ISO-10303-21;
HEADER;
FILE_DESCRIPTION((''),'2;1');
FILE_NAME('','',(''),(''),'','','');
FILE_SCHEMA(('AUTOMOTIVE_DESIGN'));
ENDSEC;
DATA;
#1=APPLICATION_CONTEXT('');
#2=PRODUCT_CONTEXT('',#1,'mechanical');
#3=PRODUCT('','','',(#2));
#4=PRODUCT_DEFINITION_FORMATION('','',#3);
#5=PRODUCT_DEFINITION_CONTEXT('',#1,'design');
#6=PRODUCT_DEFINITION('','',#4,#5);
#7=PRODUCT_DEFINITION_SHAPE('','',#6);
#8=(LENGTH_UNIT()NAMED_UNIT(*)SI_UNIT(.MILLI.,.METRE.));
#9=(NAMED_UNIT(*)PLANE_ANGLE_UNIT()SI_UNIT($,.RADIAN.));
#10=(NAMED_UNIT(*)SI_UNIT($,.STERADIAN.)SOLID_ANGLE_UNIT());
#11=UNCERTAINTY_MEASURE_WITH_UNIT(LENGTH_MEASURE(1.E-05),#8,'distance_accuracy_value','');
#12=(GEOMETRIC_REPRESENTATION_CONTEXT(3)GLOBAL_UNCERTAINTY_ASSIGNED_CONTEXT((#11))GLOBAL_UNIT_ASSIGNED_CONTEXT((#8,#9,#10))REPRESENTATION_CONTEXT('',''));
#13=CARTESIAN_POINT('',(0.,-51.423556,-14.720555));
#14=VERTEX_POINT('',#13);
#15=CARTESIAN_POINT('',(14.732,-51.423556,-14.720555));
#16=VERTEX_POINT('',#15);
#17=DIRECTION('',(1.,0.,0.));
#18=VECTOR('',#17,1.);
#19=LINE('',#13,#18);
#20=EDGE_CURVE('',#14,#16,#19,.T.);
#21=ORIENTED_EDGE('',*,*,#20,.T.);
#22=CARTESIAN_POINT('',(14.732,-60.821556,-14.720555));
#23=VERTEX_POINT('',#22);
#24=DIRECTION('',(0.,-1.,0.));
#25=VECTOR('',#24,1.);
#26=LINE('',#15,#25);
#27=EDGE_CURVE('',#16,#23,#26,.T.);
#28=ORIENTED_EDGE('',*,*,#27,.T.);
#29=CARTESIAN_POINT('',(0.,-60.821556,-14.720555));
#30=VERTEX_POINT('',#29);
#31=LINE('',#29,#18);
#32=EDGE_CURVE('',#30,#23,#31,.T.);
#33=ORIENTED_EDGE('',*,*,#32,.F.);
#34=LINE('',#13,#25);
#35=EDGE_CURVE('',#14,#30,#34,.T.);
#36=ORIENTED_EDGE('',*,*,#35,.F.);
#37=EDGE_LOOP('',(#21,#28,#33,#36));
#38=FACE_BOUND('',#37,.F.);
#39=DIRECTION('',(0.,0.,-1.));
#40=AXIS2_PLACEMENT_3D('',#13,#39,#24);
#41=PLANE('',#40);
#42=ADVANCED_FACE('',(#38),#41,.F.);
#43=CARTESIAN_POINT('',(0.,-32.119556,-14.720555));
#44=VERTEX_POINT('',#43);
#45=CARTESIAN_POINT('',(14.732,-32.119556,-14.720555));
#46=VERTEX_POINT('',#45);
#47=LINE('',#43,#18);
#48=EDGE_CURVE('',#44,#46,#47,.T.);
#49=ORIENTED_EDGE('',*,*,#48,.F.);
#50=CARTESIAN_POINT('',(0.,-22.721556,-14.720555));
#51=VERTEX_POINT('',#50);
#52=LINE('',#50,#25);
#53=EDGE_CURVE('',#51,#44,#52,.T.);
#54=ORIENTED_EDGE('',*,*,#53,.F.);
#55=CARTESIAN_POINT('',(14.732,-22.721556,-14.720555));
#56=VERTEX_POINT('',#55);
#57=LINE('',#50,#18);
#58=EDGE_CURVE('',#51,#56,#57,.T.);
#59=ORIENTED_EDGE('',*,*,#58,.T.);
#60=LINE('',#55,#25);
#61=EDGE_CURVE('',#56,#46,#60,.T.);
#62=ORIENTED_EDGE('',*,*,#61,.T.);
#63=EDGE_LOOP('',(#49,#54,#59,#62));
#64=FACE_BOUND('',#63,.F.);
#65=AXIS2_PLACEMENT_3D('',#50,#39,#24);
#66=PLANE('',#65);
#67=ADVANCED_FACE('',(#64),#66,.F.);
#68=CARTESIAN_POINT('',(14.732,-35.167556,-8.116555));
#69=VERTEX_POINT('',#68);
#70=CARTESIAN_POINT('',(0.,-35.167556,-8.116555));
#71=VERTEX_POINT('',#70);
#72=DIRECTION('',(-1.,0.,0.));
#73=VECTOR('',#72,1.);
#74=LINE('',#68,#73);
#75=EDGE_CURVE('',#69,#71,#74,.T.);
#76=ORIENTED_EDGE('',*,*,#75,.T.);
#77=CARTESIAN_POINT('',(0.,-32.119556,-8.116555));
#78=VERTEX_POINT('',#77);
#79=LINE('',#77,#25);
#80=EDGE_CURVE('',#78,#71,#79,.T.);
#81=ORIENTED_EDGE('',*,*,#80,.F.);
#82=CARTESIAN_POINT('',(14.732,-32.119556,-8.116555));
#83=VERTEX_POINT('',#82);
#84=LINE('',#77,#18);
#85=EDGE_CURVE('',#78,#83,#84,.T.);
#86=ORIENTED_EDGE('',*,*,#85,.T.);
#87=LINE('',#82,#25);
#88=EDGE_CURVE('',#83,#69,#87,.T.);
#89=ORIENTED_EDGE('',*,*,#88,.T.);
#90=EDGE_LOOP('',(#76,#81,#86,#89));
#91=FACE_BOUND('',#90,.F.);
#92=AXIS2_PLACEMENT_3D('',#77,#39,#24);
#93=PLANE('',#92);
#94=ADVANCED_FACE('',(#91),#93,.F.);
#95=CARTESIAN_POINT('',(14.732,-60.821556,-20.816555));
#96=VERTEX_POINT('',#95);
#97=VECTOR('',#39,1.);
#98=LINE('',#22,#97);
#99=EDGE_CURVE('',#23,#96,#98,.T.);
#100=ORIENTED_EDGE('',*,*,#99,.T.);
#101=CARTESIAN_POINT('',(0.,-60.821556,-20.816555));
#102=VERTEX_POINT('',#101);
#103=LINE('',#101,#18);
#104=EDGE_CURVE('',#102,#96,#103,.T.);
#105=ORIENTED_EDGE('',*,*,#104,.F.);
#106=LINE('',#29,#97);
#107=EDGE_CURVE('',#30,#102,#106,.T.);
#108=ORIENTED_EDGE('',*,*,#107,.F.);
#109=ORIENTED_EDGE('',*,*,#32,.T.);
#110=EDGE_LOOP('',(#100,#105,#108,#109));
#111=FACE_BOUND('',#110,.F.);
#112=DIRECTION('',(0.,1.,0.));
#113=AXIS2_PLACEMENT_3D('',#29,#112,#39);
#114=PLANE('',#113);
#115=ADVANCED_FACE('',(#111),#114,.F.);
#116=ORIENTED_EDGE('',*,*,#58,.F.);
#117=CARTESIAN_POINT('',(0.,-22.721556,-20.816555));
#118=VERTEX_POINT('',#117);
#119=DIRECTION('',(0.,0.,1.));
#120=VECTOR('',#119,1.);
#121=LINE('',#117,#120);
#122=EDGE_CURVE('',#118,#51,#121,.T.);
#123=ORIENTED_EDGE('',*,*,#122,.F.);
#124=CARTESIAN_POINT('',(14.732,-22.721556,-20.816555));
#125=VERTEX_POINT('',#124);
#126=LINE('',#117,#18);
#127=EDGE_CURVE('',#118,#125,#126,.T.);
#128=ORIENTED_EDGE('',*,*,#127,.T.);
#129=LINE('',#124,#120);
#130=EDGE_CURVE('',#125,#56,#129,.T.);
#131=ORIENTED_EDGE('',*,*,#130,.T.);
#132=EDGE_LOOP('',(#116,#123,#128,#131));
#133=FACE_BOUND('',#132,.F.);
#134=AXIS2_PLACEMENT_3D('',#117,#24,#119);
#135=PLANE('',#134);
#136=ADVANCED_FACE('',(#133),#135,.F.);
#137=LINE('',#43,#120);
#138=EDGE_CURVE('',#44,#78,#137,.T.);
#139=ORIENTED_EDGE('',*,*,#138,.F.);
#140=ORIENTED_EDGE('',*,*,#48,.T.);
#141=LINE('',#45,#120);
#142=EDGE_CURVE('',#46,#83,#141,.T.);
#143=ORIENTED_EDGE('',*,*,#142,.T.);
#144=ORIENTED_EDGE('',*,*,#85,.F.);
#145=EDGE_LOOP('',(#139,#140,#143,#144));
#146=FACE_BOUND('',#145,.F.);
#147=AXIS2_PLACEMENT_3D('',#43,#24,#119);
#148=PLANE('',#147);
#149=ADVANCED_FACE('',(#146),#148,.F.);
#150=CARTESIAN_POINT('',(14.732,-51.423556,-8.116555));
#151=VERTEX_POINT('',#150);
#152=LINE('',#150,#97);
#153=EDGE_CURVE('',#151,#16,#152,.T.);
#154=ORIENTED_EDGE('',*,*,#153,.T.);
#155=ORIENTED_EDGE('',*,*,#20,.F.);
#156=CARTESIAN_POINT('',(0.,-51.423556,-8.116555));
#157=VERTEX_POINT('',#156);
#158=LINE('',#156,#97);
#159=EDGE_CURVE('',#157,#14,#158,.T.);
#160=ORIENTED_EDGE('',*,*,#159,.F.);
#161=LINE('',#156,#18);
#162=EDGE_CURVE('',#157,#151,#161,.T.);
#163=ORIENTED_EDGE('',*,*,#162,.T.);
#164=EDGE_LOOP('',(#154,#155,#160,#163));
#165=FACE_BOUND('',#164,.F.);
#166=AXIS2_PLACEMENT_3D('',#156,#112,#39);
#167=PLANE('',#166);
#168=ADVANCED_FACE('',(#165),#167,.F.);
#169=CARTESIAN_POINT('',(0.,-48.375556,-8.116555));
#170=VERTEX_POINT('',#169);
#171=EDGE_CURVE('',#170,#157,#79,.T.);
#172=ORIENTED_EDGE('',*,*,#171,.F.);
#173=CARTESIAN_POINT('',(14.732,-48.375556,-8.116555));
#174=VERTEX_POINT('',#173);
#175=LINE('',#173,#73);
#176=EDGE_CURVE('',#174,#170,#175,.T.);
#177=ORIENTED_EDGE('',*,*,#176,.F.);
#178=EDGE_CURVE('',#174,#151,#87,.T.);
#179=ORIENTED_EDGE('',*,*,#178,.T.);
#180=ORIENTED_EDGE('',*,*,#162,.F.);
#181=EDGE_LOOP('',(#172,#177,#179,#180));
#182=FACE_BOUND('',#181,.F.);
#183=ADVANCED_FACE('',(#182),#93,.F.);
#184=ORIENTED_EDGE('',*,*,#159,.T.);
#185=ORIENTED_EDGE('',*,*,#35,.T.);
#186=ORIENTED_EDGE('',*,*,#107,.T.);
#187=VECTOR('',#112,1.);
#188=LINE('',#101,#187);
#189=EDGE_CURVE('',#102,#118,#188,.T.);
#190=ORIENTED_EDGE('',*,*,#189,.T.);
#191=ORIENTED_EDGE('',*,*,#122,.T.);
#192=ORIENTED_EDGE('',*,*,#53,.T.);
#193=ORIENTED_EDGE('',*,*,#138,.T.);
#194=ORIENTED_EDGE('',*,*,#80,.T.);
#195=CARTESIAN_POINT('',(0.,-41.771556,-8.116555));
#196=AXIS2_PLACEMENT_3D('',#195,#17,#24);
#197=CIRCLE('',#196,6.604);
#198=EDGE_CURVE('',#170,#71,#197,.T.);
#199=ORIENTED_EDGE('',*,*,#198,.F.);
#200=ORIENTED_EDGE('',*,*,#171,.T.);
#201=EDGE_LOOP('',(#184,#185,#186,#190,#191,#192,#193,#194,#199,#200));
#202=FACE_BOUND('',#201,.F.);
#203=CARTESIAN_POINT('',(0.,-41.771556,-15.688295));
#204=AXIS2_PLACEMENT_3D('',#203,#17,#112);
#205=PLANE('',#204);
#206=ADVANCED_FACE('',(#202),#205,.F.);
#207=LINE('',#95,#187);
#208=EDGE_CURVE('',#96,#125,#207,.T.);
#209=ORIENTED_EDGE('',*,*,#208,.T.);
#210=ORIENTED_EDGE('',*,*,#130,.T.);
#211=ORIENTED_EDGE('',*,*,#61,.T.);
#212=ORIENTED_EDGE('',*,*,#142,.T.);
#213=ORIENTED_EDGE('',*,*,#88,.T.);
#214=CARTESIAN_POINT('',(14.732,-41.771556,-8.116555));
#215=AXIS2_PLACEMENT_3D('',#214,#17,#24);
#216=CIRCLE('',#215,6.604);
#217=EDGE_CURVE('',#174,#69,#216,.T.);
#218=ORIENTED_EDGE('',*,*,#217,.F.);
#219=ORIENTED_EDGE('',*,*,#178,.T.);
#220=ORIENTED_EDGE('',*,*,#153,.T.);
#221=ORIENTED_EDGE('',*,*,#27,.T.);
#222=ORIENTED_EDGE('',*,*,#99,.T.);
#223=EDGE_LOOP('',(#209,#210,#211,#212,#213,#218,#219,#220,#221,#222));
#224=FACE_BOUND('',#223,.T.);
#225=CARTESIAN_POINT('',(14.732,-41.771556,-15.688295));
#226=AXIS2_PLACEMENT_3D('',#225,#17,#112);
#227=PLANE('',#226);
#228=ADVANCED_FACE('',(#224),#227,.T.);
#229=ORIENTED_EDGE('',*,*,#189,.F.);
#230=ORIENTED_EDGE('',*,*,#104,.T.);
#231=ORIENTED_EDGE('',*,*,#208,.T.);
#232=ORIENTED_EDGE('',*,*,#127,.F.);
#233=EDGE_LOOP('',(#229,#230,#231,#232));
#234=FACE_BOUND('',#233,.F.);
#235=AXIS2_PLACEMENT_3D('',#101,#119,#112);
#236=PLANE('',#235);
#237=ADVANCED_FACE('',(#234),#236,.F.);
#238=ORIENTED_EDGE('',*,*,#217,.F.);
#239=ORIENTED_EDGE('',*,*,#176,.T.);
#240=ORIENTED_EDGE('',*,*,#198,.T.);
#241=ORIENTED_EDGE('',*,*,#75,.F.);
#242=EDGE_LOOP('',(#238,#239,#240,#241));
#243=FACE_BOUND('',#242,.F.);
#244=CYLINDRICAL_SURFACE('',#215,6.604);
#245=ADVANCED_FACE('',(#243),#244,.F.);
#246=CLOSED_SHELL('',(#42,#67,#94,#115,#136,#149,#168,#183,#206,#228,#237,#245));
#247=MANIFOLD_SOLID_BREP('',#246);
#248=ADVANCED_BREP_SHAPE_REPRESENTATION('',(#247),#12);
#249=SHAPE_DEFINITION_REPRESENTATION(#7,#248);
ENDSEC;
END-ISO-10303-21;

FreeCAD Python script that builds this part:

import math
import FreeCAD as App
import Part
import Sketcher
from FreeCAD import Vector
Q = App.Units.Quantity


def add_polygon(sketch, points):
    """Adds a closed chain of lines whose ends are joined by coincident constraints."""
    first, n = sketch.GeometryCount, len(points)
    for a, b in zip(points, points[1:] + points[:1]):
        sketch.addGeometry(Part.LineSegment(App.Vector(*a, 0), App.Vector(*b, 0)), False)
    for i in range(n):
        sketch.addConstraint(Sketcher.Constraint("Coincident", first + i, 2, first + (i + 1) % n, 1))

doc = App.newDocument("Part")
body = doc.addObject("PartDesign::Body", "Body")

sketch1 = body.newObject("Sketcher::SketchObject", "Sketch")
sketch1.AttachmentSupport = (doc.getObject("YZ_Plane"), [""])
sketch1.MapMode = "FlatFace"
add_polygon(sketch1, [(-61, -15), (-61, -21), (-23, -21), (-23, -15), (-32, -15), (-32, -8), (-51, -8), (-51, -15)])
sketch1.addConstraint([
    Sketcher.Constraint("Vertical", 0),
    Sketcher.Constraint("Horizontal", 1),
    Sketcher.Constraint("Vertical", 2),
    Sketcher.Constraint("Horizontal", 3),
    Sketcher.Constraint("Vertical", 4),
    Sketcher.Constraint("Horizontal", 5),
    Sketcher.Constraint("Vertical", 6),
    Sketcher.Constraint("Horizontal", 7),
    Sketcher.Constraint("Horizontal", 3, 2, 6, 2),
    Sketcher.Constraint("Equal", 3, 7),
    Sketcher.Constraint("DistanceX", 1, 1, 1, 2, Q("1.5 in")),
    Sketcher.Constraint("DistanceX", 3, 2, 3, 1, Q("0.37 in")),
    Sketcher.Constraint("DistanceY", 0, 2, 0, 1, Q("0.24 in")),
    Sketcher.Constraint("DistanceY", 4, 1, 4, 2, Q("0.26 in")),
    Sketcher.Constraint("DistanceX", 0, 2, -1, 1, 60.821556),
    Sketcher.Constraint("DistanceY", 0, 2, -1, 1, 20.816555),
])
pad1 = body.newObject("PartDesign::Pad", "Pad")
pad1.Profile = sketch1
pad1.Length = Q("0.58 in")

sketch2 = body.newObject("Sketcher::SketchObject", "Sketch001")
sketch2.AttachmentSupport = (doc.getObject("YZ_Plane"), [""])
sketch2.MapMode = "FlatFace"
sketch2.AttachmentOffset = App.Placement(Vector(0, 0, 0.58 * 25.4), App.Rotation())
sketch2.addGeometry([
    Part.ArcOfCircle(Part.Circle(Vector(-42, -8, 0), Vector(0, 0, 1), 7), math.radians(180), math.radians(360)),
    Part.LineSegment(Vector(-35, -8, 0), Vector(-48, -8, 0)),
], False)
sketch2.addConstraint([
    Sketcher.Constraint("Coincident", 0, 1, 1, 2),
    Sketcher.Constraint("Coincident", 1, 1, 0, 2),
    Sketcher.Constraint("Horizontal", 1),
    Sketcher.Constraint("Radius", 0, Q("0.26 in")),
    Sketcher.Constraint("DistanceX", 0, 3, -1, 1, 41.771556),
    Sketcher.Constraint("DistanceY", 0, 3, -1, 1, 8.116555),
    Sketcher.Constraint("DistanceY", 0, 1, -1, 1, 8.116555),
])
pocket1 = body.newObject("PartDesign::Pocket", "Pocket")
pocket1.Profile = sketch2
pocket1.Length = Q("0.58 in")

doc.recompute()
